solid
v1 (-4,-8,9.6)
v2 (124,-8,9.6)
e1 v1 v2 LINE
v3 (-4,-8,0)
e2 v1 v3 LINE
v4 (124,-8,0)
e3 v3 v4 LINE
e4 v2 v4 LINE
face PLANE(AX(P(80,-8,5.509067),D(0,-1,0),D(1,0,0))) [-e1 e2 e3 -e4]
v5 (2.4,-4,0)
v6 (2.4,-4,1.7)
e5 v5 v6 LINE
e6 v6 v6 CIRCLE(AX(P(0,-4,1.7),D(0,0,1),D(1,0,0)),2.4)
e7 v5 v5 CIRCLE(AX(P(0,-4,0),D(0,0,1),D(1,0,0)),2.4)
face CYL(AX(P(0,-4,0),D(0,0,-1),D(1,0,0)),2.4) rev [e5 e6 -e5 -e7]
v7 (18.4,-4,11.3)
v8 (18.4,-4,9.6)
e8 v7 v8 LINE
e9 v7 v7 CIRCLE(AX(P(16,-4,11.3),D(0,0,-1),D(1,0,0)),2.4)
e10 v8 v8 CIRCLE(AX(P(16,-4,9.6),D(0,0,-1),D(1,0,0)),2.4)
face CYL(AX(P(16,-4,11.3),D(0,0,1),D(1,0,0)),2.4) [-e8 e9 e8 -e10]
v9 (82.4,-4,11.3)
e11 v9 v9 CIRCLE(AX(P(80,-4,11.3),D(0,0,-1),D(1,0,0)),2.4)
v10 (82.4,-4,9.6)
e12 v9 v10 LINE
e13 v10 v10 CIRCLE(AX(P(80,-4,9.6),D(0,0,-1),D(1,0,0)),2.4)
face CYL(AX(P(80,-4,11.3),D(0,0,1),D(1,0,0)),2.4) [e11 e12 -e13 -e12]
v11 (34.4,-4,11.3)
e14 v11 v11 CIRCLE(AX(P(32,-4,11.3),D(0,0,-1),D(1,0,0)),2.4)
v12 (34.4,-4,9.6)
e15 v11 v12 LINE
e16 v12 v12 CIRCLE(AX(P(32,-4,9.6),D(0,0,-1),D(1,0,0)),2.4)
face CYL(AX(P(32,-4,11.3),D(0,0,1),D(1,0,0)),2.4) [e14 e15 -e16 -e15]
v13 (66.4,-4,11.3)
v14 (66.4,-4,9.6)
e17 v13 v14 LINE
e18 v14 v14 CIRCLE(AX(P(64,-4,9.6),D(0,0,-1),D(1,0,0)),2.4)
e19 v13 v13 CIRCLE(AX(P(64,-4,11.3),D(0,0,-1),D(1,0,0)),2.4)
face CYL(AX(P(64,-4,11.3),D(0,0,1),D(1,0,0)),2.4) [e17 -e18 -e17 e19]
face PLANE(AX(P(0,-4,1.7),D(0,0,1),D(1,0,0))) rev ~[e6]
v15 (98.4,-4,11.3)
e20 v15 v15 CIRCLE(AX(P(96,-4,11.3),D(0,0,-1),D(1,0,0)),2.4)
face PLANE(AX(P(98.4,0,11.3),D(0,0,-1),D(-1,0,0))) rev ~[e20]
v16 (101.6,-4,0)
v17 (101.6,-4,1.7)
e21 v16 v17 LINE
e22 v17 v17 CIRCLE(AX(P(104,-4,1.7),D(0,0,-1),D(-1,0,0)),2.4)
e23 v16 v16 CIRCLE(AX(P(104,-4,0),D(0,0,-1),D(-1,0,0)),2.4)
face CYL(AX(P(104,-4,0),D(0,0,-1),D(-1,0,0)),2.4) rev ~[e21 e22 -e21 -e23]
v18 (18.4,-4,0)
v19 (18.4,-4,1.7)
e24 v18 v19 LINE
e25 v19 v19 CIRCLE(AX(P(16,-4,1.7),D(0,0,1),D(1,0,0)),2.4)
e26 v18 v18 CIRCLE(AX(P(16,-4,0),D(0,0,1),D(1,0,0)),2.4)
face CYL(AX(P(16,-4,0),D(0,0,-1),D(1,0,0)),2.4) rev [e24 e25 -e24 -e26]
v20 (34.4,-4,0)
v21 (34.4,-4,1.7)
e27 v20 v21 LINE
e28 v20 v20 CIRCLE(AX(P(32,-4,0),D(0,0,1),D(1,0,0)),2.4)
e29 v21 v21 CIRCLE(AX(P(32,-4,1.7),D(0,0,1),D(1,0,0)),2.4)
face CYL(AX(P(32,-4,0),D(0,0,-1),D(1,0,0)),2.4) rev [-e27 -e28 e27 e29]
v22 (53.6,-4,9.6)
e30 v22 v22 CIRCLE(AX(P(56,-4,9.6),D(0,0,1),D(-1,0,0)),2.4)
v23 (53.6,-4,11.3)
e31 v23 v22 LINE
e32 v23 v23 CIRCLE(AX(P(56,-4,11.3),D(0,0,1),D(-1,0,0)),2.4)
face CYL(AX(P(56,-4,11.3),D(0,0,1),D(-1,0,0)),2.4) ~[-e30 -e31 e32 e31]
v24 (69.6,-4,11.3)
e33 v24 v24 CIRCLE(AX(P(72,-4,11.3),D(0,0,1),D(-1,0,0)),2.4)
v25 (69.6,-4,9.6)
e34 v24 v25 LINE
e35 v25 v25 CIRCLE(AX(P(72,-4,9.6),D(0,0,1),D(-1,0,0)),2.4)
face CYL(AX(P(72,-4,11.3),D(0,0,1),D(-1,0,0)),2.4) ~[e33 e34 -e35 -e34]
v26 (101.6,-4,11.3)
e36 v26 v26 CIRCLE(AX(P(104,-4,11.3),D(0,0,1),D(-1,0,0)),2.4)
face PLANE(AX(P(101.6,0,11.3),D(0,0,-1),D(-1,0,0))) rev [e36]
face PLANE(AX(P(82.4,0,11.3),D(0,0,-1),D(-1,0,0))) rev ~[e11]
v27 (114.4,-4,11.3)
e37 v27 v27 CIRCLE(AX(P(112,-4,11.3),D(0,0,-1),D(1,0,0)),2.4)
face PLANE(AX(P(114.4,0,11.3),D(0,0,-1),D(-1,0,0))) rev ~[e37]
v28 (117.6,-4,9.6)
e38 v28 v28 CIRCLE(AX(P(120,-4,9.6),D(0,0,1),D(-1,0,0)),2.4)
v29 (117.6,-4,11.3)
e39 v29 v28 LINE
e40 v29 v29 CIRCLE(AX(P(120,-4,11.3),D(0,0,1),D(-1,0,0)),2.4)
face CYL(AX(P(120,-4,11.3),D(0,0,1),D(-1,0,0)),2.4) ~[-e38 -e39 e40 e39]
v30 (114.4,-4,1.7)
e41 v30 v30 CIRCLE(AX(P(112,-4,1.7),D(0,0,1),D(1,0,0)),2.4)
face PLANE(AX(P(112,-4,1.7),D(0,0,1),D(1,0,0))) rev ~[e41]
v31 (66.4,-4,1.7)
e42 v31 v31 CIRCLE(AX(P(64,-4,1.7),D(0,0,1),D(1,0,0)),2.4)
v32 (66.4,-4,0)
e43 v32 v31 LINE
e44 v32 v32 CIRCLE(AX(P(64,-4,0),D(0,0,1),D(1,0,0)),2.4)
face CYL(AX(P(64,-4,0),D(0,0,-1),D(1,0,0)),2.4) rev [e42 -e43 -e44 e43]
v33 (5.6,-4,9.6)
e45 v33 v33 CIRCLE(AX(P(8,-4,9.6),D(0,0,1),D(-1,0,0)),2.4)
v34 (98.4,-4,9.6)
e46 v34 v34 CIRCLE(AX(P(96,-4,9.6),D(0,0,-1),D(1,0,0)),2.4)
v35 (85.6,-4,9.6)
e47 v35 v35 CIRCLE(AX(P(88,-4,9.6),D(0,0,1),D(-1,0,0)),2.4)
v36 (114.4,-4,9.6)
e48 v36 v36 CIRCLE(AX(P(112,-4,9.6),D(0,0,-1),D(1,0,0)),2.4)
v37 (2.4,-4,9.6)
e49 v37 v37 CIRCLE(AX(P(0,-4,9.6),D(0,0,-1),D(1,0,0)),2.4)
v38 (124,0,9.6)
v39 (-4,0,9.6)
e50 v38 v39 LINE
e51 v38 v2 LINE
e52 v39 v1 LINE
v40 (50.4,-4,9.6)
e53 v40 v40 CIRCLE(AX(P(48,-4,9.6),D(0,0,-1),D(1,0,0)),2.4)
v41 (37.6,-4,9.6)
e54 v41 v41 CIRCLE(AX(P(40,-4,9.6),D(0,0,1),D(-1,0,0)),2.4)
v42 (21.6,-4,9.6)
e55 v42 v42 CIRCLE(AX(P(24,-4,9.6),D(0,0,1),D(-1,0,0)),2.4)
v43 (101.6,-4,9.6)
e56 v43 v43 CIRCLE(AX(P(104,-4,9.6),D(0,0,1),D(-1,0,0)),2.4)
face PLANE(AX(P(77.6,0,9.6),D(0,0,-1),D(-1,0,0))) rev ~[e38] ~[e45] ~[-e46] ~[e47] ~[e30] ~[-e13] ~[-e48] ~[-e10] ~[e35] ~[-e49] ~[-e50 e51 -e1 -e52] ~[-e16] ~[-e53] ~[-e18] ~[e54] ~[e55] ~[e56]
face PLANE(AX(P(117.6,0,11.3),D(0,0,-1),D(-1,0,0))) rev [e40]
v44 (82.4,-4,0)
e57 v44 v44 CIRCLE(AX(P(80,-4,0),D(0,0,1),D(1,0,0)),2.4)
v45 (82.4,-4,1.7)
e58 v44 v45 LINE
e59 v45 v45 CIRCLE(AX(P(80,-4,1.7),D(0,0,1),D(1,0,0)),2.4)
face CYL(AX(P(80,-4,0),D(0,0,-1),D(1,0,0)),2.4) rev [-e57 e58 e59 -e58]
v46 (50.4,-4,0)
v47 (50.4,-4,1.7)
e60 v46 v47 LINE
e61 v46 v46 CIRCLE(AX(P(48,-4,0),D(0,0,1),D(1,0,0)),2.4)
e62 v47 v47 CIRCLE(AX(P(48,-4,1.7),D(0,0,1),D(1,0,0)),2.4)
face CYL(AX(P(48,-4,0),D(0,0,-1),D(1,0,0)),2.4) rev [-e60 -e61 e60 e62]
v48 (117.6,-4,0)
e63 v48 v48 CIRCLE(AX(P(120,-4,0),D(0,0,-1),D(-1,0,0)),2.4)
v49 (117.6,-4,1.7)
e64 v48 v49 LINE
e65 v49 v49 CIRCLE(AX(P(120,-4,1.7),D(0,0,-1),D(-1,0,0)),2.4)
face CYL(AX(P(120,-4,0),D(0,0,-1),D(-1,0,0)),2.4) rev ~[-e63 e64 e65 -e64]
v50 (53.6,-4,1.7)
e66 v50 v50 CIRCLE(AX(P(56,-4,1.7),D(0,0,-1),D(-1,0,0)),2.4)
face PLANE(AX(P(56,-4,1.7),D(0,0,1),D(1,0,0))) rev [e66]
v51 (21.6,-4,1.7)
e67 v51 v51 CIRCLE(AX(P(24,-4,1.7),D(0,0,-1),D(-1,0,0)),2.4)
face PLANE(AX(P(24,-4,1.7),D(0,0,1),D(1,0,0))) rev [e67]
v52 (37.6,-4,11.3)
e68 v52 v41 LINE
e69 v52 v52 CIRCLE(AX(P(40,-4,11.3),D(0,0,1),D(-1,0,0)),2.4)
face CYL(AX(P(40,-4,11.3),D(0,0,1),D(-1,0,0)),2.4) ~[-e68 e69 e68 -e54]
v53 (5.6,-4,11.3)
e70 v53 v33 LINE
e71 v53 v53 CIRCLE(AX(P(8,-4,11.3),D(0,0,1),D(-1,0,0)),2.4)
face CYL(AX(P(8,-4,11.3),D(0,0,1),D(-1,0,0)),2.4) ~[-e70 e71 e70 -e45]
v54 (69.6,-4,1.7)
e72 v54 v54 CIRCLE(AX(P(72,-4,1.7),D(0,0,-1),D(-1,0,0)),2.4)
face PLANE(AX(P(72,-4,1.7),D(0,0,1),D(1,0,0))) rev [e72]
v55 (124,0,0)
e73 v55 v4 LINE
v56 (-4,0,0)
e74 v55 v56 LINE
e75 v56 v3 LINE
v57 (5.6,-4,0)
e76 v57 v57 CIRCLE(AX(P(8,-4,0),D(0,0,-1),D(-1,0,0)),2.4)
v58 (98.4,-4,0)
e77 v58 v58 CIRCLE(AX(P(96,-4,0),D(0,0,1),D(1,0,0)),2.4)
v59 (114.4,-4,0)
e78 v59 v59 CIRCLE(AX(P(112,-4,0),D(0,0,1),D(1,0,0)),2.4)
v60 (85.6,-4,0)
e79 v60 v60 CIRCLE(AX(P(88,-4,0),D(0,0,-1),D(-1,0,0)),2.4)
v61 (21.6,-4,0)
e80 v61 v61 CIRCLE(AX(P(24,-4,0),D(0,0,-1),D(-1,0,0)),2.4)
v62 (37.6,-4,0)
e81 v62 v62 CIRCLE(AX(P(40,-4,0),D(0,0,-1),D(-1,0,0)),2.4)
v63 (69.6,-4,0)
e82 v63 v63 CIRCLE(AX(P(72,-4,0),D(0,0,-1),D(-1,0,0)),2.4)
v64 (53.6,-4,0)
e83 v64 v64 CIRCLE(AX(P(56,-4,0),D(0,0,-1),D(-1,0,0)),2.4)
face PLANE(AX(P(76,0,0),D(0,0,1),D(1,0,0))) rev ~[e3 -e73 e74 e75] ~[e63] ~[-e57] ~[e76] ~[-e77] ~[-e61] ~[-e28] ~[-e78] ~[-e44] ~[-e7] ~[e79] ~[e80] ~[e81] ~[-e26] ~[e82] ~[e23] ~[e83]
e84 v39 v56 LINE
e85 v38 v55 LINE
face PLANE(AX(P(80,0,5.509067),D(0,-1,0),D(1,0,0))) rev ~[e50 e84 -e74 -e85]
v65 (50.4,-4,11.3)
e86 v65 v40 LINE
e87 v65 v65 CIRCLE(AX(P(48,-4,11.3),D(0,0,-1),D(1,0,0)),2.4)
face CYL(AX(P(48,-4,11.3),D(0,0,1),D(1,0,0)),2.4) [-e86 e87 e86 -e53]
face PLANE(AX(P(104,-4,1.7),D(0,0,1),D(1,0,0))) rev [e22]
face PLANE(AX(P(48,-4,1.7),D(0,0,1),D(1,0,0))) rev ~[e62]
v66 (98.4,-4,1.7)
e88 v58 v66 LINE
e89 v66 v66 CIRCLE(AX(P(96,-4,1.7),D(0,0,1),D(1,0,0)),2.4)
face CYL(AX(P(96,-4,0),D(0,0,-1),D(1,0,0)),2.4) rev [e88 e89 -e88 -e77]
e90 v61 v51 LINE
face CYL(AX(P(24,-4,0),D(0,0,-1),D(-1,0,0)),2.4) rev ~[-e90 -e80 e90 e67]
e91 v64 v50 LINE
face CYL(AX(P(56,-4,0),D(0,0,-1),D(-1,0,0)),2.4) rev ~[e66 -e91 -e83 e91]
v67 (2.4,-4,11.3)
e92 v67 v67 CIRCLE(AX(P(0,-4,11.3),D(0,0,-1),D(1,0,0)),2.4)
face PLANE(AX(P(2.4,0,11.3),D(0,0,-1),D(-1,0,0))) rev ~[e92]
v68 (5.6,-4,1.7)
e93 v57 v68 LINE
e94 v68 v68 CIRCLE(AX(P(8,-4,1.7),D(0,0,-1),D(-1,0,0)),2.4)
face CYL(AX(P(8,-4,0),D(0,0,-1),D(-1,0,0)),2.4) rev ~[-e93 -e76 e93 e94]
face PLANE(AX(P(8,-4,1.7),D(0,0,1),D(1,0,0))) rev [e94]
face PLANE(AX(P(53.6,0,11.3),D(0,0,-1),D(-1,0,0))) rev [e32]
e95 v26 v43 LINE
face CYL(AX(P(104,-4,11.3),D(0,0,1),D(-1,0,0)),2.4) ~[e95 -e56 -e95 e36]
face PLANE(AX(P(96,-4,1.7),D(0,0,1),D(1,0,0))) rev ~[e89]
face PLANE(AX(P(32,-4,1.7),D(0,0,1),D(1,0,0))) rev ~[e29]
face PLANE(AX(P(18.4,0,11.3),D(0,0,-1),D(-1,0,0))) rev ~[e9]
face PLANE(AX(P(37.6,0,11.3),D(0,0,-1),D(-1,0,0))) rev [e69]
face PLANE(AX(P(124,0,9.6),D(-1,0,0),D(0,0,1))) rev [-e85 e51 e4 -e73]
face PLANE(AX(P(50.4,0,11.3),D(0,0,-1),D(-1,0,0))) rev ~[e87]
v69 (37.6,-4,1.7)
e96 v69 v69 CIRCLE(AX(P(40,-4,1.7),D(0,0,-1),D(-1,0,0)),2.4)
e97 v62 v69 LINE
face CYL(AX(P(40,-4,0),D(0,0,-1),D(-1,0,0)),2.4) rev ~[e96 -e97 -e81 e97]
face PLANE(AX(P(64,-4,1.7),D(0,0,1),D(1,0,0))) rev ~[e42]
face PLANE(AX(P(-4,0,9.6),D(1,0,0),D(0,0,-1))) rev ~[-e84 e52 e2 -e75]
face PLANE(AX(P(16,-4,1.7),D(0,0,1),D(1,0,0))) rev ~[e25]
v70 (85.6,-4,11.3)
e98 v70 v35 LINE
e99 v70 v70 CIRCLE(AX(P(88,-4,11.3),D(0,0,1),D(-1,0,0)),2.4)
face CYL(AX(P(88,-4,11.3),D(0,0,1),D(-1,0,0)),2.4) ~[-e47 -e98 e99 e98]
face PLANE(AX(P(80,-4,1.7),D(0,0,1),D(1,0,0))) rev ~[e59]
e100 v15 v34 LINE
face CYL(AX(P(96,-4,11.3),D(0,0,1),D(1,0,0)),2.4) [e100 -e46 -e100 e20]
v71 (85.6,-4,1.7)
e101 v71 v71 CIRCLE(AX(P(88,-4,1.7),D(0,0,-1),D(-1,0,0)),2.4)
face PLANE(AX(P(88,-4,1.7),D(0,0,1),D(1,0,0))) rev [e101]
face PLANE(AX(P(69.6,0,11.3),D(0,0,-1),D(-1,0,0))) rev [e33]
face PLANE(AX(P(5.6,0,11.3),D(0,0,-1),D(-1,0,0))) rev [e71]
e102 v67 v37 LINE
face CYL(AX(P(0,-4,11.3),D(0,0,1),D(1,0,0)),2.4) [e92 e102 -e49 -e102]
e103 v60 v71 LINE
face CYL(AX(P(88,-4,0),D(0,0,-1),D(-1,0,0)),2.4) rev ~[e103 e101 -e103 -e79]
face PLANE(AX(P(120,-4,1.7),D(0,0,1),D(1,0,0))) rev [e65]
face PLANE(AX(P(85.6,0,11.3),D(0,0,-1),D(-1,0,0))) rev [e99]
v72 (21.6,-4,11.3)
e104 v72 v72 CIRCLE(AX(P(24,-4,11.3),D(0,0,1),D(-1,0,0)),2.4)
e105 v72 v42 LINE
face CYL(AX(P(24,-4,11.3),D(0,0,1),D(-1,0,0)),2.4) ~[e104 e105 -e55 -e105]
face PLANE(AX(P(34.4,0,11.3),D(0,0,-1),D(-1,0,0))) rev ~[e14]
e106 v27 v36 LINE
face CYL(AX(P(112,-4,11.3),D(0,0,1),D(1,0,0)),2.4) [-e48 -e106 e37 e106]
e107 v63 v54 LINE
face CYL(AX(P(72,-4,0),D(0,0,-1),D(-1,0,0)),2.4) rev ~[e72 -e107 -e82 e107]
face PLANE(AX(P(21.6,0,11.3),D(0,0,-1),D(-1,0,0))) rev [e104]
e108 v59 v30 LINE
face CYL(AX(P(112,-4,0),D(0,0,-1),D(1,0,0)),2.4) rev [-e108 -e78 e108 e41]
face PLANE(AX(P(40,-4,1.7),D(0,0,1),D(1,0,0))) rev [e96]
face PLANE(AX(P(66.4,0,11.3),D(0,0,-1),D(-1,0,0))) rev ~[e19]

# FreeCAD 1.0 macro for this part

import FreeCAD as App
import Part
import Sketcher
from FreeCAD import Vector

doc = App.newDocument("Part")
body = doc.addObject("PartDesign::Body", "Body")

# Sketch on XZ plane
sketch1 = body.newObject("Sketcher::SketchObject", "Sketch")
sketch1.AttachmentSupport = (doc.getObject("XZ_Plane"), [""])
sketch1.MapMode = "FlatFace"
sketch1.addGeometry([
    Part.LineSegment(Vector(-2.4, 9.6, 0), Vector(-4, 9.6, 0)),  # 0
    Part.LineSegment(Vector(-4, 9.6, 0), Vector(-4, 0, 0)),  # 1
    Part.LineSegment(Vector(-4, 0, 0), Vector(4, 0, 0)),  # 2
    Part.LineSegment(Vector(4, 0, 0), Vector(4, 9.6, 0)),  # 3
    Part.LineSegment(Vector(4, 9.6, 0), Vector(2.4, 9.6, 0)),  # 4
    Part.LineSegment(Vector(2.4, 9.6, 0), Vector(2.4, 11.3, 0)),  # 5
    Part.LineSegment(Vector(2.4, 11.3, 0), Vector(-2.4, 11.3, 0)),  # 6
    Part.LineSegment(Vector(-2.4, 11.3, 0), Vector(-2.4, 9.6, 0)),  # 7
], False)
sketch1.addConstraint([
    Sketcher.Constraint("Coincident", 0, 2, 1, 1),
    Sketcher.Constraint("Coincident", 1, 2, 2, 1),
    Sketcher.Constraint("Coincident", 2, 2, 3, 1),
    Sketcher.Constraint("Coincident", 3, 2, 4, 1),
    Sketcher.Constraint("Coincident", 4, 2, 5, 1),
    Sketcher.Constraint("Coincident", 5, 2, 6, 1),
    Sketcher.Constraint("Coincident", 6, 2, 7, 1),
    Sketcher.Constraint("Coincident", 7, 2, 0, 1),
    Sketcher.Constraint("Horizontal", 0),
    Sketcher.Constraint("Vertical", 1),
    Sketcher.Constraint("Horizontal", 2),
    Sketcher.Constraint("Vertical", 3),
    Sketcher.Constraint("Horizontal", 4),
    Sketcher.Constraint("Vertical", 5),
    Sketcher.Constraint("Horizontal", 6),
    Sketcher.Constraint("Vertical", 7),
    Sketcher.Constraint("Symmetric", 1, 2, 2, 2, -1, 1),
    Sketcher.Constraint("Symmetric", 4, 2, 7, 2, -2),
    Sketcher.Constraint("DistanceX", 2, 1, 2, 2, 8.0),
    Sketcher.Constraint("DistanceX", 0, 2, 0, 1, 1.6),
    Sketcher.Constraint("DistanceY", 1, 2, 1, 1, 9.6),
    Sketcher.Constraint("DistanceY", 5, 1, 5, 2, 1.7),
])
pad1 = body.newObject("PartDesign::Pad", "Pad")
pad1.Profile = sketch1
pad1.Length = 8

# Sketch on XY plane
sketch2 = body.newObject("Sketcher::SketchObject", "Sketch001")
sketch2.AttachmentSupport = (doc.getObject("XY_Plane"), [""])
sketch2.MapMode = "FlatFace"
sketch2.AttachmentOffset = App.Placement(Vector(0, 0, 11.3), App.Rotation())
sketch2.addGeometry([
    Part.LineSegment(Vector(-4, 0, 0), Vector(-4, -8, 0)),  # 0
    Part.LineSegment(Vector(-4, -8, 0), Vector(4, -8, 0)),  # 1
    Part.LineSegment(Vector(4, -8, 0), Vector(4, 0, 0)),  # 2
    Part.LineSegment(Vector(4, 0, 0), Vector(-4, 0, 0)),  # 3
    Part.Circle(Vector(0, -4, 0), Vector(0, 0, 1), 2.4),  # 4
], False)
sketch2.addConstraint([
    Sketcher.Constraint("Coincident", 0, 2, 1, 1),
    Sketcher.Constraint("Coincident", 1, 2, 2, 1),
    Sketcher.Constraint("Coincident", 2, 2, 3, 1),
    Sketcher.Constraint("Coincident", 3, 2, 0, 1),
    Sketcher.Constraint("Vertical", 0),
    Sketcher.Constraint("Horizontal", 1),
    Sketcher.Constraint("Vertical", 2),
    Sketcher.Constraint("Horizontal", 3),
    Sketcher.Constraint("Symmetric", 2, 2, 3, 2, -1, 1),
    Sketcher.Constraint("PointOnObject", 4, 3, -2),
    Sketcher.Constraint("Equal", 3, 0),
    Sketcher.Constraint("Diameter", 4, 4.8),
    Sketcher.Constraint("DistanceX", 1, 1, 1, 2, 8.0),
    Sketcher.Constraint("DistanceY", 4, 3, -1, 1, 4.0),
])
pocket1 = body.newObject("PartDesign::Pocket", "Pocket")
pocket1.Profile = sketch2
pocket1.Length = 1.7

# Sketch on XY plane
sketch3 = body.newObject("Sketcher::SketchObject", "Sketch002")
sketch3.AttachmentSupport = (doc.getObject("XY_Plane"), [""])
sketch3.MapMode = "FlatFace"
sketch3.addGeometry(Part.Circle(Vector(0, -4, 0), Vector(0, 0, 1), 2.4), False)
sketch3.addConstraint([
    Sketcher.Constraint("PointOnObject", 0, 3, -2),
    Sketcher.Constraint("Diameter", 0, 4.8),
    Sketcher.Constraint("DistanceY", 0, 3, -1, 1, 4.0),
])
pocket2 = body.newObject("PartDesign::Pocket", "Pocket001")
pocket2.Profile = sketch3
pocket2.Length = 1.7
pocket2.Reversed = True
body2 = doc.addObject("PartDesign::Body", "Body001")
doc.recompute()

body2.BaseFeature = body
doc.recompute()

mirroring = doc.addObject("Part::Mirroring", "Mirroring")
mirroring.Source = body
mirroring.Base = Vector(4, 0, 0)
mirroring.Normal = Vector(1, 0, 0)
body3 = doc.addObject("PartDesign::Body", "Body002")
body3.BaseFeature = mirroring
boolean = body2.newObject("PartDesign::Boolean", "Boolean")
boolean.Type = "Fuse"
boolean.addObjects([body3])
doc.recompute()
body4 = doc.addObject("PartDesign::Body", "Body003")
doc.recompute()

body4.BaseFeature = body2
doc.recompute()

mirroring2 = doc.addObject("Part::Mirroring", "Mirroring001")
mirroring2.Source = body2
mirroring2.Base = Vector(12, 0, 0)
mirroring2.Normal = Vector(1, 0, 0)
body5 = doc.addObject("PartDesign::Body", "Body004")
body5.BaseFeature = mirroring2
boolean2 = body4.newObject("PartDesign::Boolean", "Boolean001")
boolean2.Type = "Fuse"
boolean2.addObjects([body5])
doc.recompute()
body6 = doc.addObject("PartDesign::Body", "Body005")
doc.recompute()

body6.BaseFeature = body4
doc.recompute()

mirroring3 = doc.addObject("Part::Mirroring", "Mirroring002")
mirroring3.Source = body4
mirroring3.Base = Vector(28, 0, 0)
mirroring3.Normal = Vector(1, 0, 0)
body7 = doc.addObject("PartDesign::Body", "Body006")
body7.BaseFeature = mirroring3
boolean3 = body6.newObject("PartDesign::Boolean", "Boolean002")
boolean3.Type = "Fuse"
boolean3.addObjects([body7])
doc.recompute()
body8 = doc.addObject("PartDesign::Body", "Body007")
doc.recompute()

body8.BaseFeature = body6
doc.recompute()

mirroring4 = doc.addObject("Part::Mirroring", "Mirroring003")
mirroring4.Source = body6
mirroring4.Base = Vector(60, -4, 4.8)
mirroring4.Normal = Vector(1, 0, 0)
body9 = doc.addObject("PartDesign::Body", "Body008")
body9.BaseFeature = mirroring4
boolean4 = body8.newObject("PartDesign::Boolean", "Boolean003")
boolean4.Type = "Fuse"
boolean4.addObjects([body9])
doc.recompute()
mirroring.Visibility = False
mirroring2.Visibility = False
mirroring3.Visibility = False
mirroring4.Visibility = False

doc.recompute()
